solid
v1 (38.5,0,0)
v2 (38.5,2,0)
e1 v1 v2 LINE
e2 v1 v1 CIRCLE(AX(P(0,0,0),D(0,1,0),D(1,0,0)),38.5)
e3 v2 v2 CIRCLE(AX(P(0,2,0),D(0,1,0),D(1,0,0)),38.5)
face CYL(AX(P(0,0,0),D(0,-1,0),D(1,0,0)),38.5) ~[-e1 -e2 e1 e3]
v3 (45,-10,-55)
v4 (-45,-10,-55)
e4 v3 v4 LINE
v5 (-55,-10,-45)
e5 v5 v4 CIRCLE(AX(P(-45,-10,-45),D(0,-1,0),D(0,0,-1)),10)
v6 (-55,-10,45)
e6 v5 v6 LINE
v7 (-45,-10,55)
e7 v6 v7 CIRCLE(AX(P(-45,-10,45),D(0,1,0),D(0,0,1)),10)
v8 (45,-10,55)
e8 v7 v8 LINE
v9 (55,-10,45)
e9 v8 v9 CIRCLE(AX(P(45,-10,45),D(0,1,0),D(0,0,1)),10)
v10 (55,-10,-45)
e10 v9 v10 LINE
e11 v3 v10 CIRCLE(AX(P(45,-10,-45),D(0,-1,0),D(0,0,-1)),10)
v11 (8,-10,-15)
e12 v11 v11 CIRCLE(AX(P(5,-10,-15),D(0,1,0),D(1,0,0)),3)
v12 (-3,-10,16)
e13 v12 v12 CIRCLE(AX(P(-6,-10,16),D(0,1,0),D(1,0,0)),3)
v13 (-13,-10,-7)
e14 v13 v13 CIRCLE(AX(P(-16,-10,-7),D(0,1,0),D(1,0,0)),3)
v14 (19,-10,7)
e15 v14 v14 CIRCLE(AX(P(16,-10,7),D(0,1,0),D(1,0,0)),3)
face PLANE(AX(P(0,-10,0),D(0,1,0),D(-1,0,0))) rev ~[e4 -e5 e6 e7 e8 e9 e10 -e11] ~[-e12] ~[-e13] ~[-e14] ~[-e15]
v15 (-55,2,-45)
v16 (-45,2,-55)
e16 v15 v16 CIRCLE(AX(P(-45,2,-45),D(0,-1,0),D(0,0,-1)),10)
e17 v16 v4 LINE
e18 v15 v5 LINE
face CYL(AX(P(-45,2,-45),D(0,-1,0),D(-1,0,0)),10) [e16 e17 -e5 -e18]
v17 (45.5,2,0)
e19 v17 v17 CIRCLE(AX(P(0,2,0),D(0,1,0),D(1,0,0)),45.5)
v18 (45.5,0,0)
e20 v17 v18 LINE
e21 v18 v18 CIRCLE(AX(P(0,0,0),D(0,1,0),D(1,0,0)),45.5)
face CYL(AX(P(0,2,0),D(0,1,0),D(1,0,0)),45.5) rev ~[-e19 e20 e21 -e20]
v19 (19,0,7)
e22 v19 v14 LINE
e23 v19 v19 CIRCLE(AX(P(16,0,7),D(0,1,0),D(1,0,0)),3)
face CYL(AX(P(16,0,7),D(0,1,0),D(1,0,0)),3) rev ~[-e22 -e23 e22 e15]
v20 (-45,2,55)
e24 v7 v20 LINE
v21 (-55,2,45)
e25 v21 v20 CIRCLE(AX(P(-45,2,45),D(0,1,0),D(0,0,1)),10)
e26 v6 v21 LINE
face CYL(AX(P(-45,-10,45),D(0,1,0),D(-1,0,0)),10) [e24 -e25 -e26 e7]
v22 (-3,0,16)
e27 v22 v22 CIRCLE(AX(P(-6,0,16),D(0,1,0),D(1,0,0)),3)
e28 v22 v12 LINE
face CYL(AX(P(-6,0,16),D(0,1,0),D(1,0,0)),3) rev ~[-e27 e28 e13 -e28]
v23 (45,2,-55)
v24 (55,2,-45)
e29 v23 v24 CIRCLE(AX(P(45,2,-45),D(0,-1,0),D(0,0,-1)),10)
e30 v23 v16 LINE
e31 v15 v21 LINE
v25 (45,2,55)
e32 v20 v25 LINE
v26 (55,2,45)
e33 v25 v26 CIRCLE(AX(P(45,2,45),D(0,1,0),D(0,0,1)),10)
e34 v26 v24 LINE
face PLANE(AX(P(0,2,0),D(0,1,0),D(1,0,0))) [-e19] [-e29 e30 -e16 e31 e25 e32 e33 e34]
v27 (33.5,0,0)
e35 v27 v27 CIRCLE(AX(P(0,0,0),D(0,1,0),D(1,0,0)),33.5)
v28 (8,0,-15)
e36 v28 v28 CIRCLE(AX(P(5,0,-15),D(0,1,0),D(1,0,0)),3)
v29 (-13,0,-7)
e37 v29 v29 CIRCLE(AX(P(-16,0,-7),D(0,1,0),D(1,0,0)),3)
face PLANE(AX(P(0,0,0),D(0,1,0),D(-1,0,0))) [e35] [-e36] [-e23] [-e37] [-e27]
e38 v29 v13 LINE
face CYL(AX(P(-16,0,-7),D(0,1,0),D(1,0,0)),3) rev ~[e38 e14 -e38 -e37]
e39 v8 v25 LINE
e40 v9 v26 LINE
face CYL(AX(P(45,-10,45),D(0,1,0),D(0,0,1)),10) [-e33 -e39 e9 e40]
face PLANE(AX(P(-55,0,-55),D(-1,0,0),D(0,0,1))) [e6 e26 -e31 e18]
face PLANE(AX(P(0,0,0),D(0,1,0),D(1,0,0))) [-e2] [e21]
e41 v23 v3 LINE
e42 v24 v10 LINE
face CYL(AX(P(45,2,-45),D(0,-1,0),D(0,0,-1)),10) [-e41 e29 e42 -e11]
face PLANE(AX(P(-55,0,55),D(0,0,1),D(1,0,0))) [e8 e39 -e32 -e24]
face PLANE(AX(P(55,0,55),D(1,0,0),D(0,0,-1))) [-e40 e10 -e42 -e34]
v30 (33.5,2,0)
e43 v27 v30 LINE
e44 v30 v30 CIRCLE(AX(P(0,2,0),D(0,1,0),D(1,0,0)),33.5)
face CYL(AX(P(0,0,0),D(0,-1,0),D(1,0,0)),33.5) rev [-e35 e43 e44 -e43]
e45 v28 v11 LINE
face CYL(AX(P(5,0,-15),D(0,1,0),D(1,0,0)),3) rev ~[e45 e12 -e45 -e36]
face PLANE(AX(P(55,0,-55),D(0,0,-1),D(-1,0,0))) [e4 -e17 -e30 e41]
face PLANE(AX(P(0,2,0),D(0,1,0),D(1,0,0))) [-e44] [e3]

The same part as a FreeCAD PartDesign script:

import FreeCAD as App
import Part
import Sketcher
from FreeCAD import Vector


def edges_at(feature, points):
    """Names of the edges that pass closest to the given points."""
    edges = feature.Shape.Edges
    near = lambda p: min(range(len(edges)), key=lambda i: edges[i].distToShape(Part.Vertex(*p))[0])
    return sorted({f"Edge{near(p) + 1}" for p in points})


def add_polygon(sketch, points):
    """Adds a closed chain of lines whose ends are joined by coincident constraints."""
    first, n = sketch.GeometryCount, len(points)
    for a, b in zip(points, points[1:] + points[:1]):
        sketch.addGeometry(Part.LineSegment(App.Vector(*a, 0), App.Vector(*b, 0)), False)
    for i in range(n):
        sketch.addConstraint(Sketcher.Constraint("Coincident", first + i, 2, first + (i + 1) % n, 1))

doc = App.newDocument("Part")
body = doc.addObject("PartDesign::Body", "Body")

# Sketch on XZ plane
sketch1 = body.newObject("Sketcher::SketchObject", "Sketch")
sketch1.AttachmentSupport = (doc.getObject("XZ_Plane"), [""])
sketch1.MapMode = "FlatFace"
add_polygon(sketch1, [(-55, -55), (-55, 55), (55, 55), (55, -55)])  # lines 0-3
sketch1.addConstraint([
    Sketcher.Constraint("Vertical", 0),
    Sketcher.Constraint("Horizontal", 1),
    Sketcher.Constraint("Vertical", 2),
    Sketcher.Constraint("Horizontal", 3),
    Sketcher.Constraint("Symmetric", 0, 2, 2, 2, -1, 1),
    Sketcher.Constraint("Equal", 3, 0),
    Sketcher.Constraint("DistanceX", 1, 1, 1, 2, 110.0),
])
pad1 = body.newObject("PartDesign::Pad", "Pad")
pad1.Profile = sketch1
pad1.Length = 10

# Sketch on XZ plane
sketch2 = body.newObject("Sketcher::SketchObject", "Sketch001")
sketch2.AttachmentSupport = (doc.getObject("XZ_Plane"), [""])
sketch2.MapMode = "FlatFace"
sketch2.addGeometry(Part.Circle(Vector(0, 0, 0), Vector(0, 0, 1), 38.5), False)  # 0
sketch2.addGeometry(Part.Circle(Vector(0, 0, 0), Vector(0, 0, 1), 33.5), False)  # 1
add_polygon(sketch2, [(-55, -55), (-55, 55), (55, 55), (55, -55)])  # lines 2-5
sketch2.addGeometry(Part.Circle(Vector(0, 0, 0), Vector(0, 0, 1), 43.5), False)  # 6
sketch2.addConstraint([
    Sketcher.Constraint("Vertical", 2),
    Sketcher.Constraint("Horizontal", 3),
    Sketcher.Constraint("Vertical", 4),
    Sketcher.Constraint("Horizontal", 5),
    Sketcher.Constraint("Coincident", 0, 3, -1, 1),
    Sketcher.Constraint("Coincident", 1, 3, -1, 1),
    Sketcher.Constraint("Coincident", 6, 3, -1, 1),
    Sketcher.Constraint("Symmetric", 2, 2, 4, 2, -1, 1),
    Sketcher.Constraint("Equal", 5, 2),
    Sketcher.Constraint("Diameter", 0, 77.0),
    Sketcher.Constraint("Diameter", 1, 67.0),
    Sketcher.Constraint("Diameter", 6, 87.0),
    Sketcher.Constraint("DistanceX", 3, 1, 3, 2, 110.0),
])
pad2 = body.newObject("PartDesign::Pad", "Pad001")
pad2.Profile = sketch2
pad2.Length = 2
pad2.Reversed = True

# Sketch on XZ plane
sketch3 = body.newObject("Sketcher::SketchObject", "Sketch002")
sketch3.AttachmentSupport = (doc.getObject("XZ_Plane"), [""])
sketch3.MapMode = "FlatFace"
sketch3.addGeometry([
    Part.Circle(Vector(-16, -7, 0), Vector(0, 0, 1), 3),
    Part.Circle(Vector(5, -15, 0), Vector(0, 0, 1), 3),
    Part.Circle(Vector(16, 7, 0), Vector(0, 0, 1), 3),
    Part.Circle(Vector(-6, 16, 0), Vector(0, 0, 1), 3),
], False)
sketch3.addConstraint([
    Sketcher.Constraint("Equal", 0, 1),
    Sketcher.Constraint("Equal", 1, 2),
    Sketcher.Constraint("Equal", 2, 3),
    Sketcher.Constraint("Symmetric", 0, 3, 2, 3, -1, 1),
    Sketcher.Constraint("Diameter", 0, 6.0),
    Sketcher.Constraint("DistanceX", 3, 3, -1, 1, 6.0),
    Sketcher.Constraint("DistanceX", 0, 3, -1, 1, 16.0),
    Sketcher.Constraint("DistanceY", 0, 3, -1, 1, 7.0),
    Sketcher.Constraint("DistanceX", -1, 1, 1, 3, 5.0),
    Sketcher.Constraint("DistanceY", 1, 3, -1, 1, 15.0),
    Sketcher.Constraint("DistanceY", -1, 1, 3, 3, 16.0),
])
pocket1 = body.newObject("PartDesign::Pocket", "Pocket")
pocket1.Profile = sketch3
pocket1.Length = 10
pocket1.Reversed = True
doc.recompute()

fillet = body.newObject("PartDesign::Fillet", "Fillet")
fillet.Base = (pocket1, edges_at(pocket1, [
    (-55, -4, -55),
    (55, -4, -55),
    (55, -4, 55),
    (-55, -4, 55),
]))
fillet.Radius = 10

# Sketch on XZ plane
sketch4 = body.newObject("Sketcher::SketchObject", "Sketch003")
sketch4.AttachmentSupport = (doc.getObject("XZ_Plane"), [""])
sketch4.MapMode = "FlatFace"
sketch4.AttachmentOffset = App.Placement(Vector(0, 0, -2), App.Rotation())
sketch4.addGeometry([
    Part.Circle(Vector(0, 0, 0), Vector(0, 0, 1), 45.5),
    Part.Circle(Vector(0, 0, 0), Vector(0, 0, 1), 43.5),
], False)
sketch4.addConstraint([
    Sketcher.Constraint("Coincident", 0, 3, -1, 1),
    Sketcher.Constraint("Coincident", 1, 3, -1, 1),
    Sketcher.Constraint("Diameter", 0, 91.0),
    Sketcher.Constraint("Diameter", 1, 87.0),
])
pocket2 = body.newObject("PartDesign::Pocket", "Pocket001")
pocket2.Profile = sketch4
pocket2.Length = 2
pocket2.Reversed = True

doc.recompute()
